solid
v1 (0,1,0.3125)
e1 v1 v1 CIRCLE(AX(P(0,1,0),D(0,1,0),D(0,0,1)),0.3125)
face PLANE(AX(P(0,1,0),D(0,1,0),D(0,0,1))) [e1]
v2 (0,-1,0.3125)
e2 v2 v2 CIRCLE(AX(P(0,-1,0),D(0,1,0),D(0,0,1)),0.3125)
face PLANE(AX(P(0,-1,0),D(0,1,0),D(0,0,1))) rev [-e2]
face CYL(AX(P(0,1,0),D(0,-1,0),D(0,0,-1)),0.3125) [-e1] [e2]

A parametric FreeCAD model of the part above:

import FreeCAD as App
import Part
import Sketcher

V = App.Vector
Q = App.Units.Quantity

doc = App.newDocument("Part")
body = doc.addObject("PartDesign::Body", "Body")

sketch1 = body.newObject("Sketcher::SketchObject", "Sketch")
sketch1.AttachmentSupport = (doc.getObject("XZ_Plane"), [""])
sketch1.MapMode = "FlatFace"
sketch1.addGeometry(Part.Circle(V(0, 0, 0), V(0, 0, 1), 0.3125), False)
sketch1.addConstraint(Sketcher.Constraint("Coincident", 0, 3, -1, 1))
sketch1.addConstraint(Sketcher.Constraint("Diameter", 0, Q("0.625 mm")))
pad1 = body.newObject("PartDesign::Pad", "Pad")
pad1.Profile = sketch1
pad1.Length = 2
pad1.Midplane = True

doc.recompute()
